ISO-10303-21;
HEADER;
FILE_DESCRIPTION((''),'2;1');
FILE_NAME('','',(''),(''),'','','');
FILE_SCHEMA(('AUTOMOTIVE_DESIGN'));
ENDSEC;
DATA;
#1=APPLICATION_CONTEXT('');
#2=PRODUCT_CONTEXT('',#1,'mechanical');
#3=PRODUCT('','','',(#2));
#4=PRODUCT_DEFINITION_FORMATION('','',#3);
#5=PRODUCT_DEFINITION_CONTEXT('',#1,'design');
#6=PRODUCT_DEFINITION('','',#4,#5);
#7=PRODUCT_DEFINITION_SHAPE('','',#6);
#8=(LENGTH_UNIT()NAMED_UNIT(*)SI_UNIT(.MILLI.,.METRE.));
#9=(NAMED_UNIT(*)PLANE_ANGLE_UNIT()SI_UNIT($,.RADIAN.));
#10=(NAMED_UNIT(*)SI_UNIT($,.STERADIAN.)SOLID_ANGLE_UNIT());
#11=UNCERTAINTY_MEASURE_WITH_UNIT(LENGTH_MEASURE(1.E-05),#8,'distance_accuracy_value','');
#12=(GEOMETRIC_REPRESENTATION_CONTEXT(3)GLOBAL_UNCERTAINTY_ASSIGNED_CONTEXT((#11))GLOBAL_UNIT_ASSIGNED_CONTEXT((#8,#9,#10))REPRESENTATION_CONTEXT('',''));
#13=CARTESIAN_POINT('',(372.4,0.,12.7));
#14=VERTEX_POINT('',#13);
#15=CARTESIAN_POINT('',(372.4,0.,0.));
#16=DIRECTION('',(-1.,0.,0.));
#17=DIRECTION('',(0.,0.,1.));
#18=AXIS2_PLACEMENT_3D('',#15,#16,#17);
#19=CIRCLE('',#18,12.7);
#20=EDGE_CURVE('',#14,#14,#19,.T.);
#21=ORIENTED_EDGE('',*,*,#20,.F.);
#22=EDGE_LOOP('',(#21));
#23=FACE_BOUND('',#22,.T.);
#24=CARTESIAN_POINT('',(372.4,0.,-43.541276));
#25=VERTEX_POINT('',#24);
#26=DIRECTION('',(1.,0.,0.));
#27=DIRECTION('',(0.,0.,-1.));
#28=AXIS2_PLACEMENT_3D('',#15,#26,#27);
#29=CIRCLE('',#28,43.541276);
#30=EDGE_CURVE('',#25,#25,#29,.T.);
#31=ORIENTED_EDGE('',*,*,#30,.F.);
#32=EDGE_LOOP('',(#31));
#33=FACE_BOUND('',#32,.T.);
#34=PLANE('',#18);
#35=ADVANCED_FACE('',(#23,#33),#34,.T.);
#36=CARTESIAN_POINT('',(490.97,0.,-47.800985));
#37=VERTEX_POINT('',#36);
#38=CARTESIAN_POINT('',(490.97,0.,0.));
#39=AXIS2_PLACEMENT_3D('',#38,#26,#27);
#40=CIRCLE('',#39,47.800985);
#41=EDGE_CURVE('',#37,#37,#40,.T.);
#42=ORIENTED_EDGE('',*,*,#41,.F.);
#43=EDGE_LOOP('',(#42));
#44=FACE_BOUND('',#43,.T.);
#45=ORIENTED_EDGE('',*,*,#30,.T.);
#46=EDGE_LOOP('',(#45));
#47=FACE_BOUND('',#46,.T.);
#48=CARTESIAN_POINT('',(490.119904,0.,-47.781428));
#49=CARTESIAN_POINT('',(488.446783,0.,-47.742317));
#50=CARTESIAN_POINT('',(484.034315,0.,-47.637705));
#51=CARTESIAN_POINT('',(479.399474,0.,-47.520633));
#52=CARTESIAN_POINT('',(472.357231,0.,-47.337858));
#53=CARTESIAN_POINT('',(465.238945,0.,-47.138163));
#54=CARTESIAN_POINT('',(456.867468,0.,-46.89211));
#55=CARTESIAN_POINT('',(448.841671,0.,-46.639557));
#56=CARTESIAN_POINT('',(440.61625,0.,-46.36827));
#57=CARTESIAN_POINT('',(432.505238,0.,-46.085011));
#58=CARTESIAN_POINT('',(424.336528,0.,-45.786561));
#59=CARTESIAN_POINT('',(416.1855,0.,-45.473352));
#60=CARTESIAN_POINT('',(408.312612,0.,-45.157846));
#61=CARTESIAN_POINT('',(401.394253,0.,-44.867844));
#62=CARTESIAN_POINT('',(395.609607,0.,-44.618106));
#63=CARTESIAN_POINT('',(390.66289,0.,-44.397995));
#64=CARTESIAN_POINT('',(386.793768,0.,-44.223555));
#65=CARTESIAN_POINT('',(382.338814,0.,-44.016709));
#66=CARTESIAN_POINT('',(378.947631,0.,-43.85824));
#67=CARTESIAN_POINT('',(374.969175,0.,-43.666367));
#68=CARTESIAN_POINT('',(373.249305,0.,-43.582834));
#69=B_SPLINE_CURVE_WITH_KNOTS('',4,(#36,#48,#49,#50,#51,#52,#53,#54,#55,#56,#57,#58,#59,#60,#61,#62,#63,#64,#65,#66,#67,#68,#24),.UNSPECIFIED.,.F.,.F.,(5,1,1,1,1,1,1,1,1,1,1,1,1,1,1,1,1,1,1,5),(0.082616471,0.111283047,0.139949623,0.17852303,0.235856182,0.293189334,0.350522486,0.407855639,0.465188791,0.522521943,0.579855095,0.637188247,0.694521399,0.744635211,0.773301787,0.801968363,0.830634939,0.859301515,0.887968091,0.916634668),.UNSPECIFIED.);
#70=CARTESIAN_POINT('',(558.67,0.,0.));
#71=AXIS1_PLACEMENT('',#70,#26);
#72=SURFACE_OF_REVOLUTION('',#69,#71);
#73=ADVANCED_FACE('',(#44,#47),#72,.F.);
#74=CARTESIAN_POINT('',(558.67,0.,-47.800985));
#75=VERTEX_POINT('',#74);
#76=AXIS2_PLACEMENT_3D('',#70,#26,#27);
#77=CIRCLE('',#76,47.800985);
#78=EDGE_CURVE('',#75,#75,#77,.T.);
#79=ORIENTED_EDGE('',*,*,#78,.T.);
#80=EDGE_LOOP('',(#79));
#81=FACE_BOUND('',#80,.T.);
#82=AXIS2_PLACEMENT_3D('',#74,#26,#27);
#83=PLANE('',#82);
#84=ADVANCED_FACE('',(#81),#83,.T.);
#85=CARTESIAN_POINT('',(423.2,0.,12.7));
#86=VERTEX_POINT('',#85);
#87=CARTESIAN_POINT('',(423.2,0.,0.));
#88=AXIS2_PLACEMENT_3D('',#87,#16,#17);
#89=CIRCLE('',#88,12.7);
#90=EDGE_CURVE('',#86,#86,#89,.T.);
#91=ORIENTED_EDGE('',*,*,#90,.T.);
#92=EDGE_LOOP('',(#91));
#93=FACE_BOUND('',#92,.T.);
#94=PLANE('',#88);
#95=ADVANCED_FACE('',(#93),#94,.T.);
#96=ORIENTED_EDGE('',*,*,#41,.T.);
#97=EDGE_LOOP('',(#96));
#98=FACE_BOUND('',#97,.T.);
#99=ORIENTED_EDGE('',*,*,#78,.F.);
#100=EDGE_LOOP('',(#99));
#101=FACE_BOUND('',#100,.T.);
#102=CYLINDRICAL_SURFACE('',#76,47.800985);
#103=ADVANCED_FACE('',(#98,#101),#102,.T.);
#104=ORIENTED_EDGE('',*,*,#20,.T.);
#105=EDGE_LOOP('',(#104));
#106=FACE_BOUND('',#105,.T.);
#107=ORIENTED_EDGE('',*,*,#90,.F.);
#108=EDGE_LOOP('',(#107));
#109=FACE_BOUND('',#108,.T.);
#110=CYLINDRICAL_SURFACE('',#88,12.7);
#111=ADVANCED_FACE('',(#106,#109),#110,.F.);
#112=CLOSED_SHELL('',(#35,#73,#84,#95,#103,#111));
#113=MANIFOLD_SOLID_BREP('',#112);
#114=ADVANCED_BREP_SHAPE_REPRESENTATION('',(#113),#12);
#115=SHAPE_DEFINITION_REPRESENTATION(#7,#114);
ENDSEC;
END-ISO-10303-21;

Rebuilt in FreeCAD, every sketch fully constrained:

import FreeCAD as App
import Part
import Sketcher

V = App.Vector
Q = App.Units.Quantity

doc = App.newDocument("Part")
body = doc.addObject("PartDesign::Body", "Body")

# Sketch on XZ plane
sketch1 = body.newObject("Sketcher::SketchObject", "Sketch")
sketch1.AttachmentSupport = (doc.getObject("XZ_Plane"), [""])
sketch1.MapMode = "FlatFace"
sketch1.addGeometry([
    Part.LineSegment(V(558.67, -47.800985, 0), V(490.97, -47.800985, 0)),  # 0
    Part.BSplineCurve([V(372.4, -43.541276, 0), V(373.249305, -43.582834, 0), V(374.969175, -43.666367, 0), V(378.947631, -43.85824, 0), V(382.338814, -44.016709, 0), V(386.793768, -44.223555, 0), V(390.66289, -44.397995, 0), V(395.609607, -44.618106, 0), V(401.394253, -44.867844, 0), V(408.312612, -45.157846, 0), V(416.1855, -45.473352, 0), V(424.336528, -45.786561, 0), V(432.505238, -46.085011, 0), V(440.61625, -46.36827, 0), V(448.841671, -46.639557, 0), V(456.867468, -46.89211, 0), V(465.238945, -47.138163, 0), V(472.357231, -47.337858, 0), V(479.399474, -47.520633, 0), V(484.034315, -47.637705, 0), V(488.446783, -47.742317, 0), V(490.119904, -47.781428, 0), V(490.97, -47.800985, 0)], [5, 1, 1, 1, 1, 1, 1, 1, 1, 1, 1, 1, 1, 1, 1, 1, 1, 1, 1, 5], [0.082616471, 0.111283047, 0.139949623, 0.168616199, 0.197282775, 0.225949351, 0.254615927, 0.304729739, 0.362062891, 0.419396043, 0.476729195, 0.534062348, 0.5913955, 0.648728652, 0.706061804, 0.763394956, 0.820728108, 0.859301516, 0.887968092, 0.916634668], False, 4, [1, 1, 1, 1, 1, 1, 1, 1, 1, 1, 1, 1, 1, 1, 1, 1, 1, 1, 1, 1, 1, 1, 1], False),  # 1
    Part.LineSegment(V(372.4, -43.541276, 0), V(372.4, 0, 0)),  # 2
    Part.LineSegment(V(372.4, 0, 0), V(558.67, 0, 0)),  # 3
    Part.LineSegment(V(558.67, 0, 0), V(558.67, -47.800985, 0)),  # 4
], False)
sketch1.addConstraint([
    Sketcher.Constraint("Block", 1),
    Sketcher.Constraint("Coincident", 0, 2, 1, 2),
    Sketcher.Constraint("Coincident", 1, 1, 2, 1),
    Sketcher.Constraint("Coincident", 2, 2, 3, 1),
    Sketcher.Constraint("Coincident", 3, 2, 4, 1),
    Sketcher.Constraint("Coincident", 4, 2, 0, 1),
    Sketcher.Constraint("Horizontal", 0),
    Sketcher.Constraint("Vertical", 2),
    Sketcher.Constraint("Horizontal", 3),
    Sketcher.Constraint("Vertical", 4),
    Sketcher.Constraint("PointOnObject", 2, 2, -1),
    Sketcher.Constraint("DistanceX", 0, 2, 0, 1, Q("67.7 mm")),
])
revolution = body.newObject("PartDesign::Revolution", "Revolution")
revolution.Profile = sketch1
revolution.ReferenceAxis = (sketch1, ["H_Axis"])
revolution.Angle = 360

# Sketch on YZ plane
sketch2 = body.newObject("Sketcher::SketchObject", "Sketch001")
sketch2.AttachmentSupport = (doc.getObject("YZ_Plane"), [""])
sketch2.MapMode = "FlatFace"
sketch2.AttachmentOffset = App.Placement(V(0, 0, 372.4), App.Rotation())
sketch2.addGeometry(Part.Circle(V(0, 0, 0), V(0, 0, 1), 13), False)
sketch2.addConstraint([
    Sketcher.Constraint("Coincident", 0, 3, -1, 1),
    Sketcher.Constraint("Diameter", 0, Q("1 in")),
])
pocket1 = body.newObject("PartDesign::Pocket", "Pocket")
pocket1.Profile = sketch2
pocket1.Length = Q("2 in")
pocket1.Reversed = True

doc.recompute()
